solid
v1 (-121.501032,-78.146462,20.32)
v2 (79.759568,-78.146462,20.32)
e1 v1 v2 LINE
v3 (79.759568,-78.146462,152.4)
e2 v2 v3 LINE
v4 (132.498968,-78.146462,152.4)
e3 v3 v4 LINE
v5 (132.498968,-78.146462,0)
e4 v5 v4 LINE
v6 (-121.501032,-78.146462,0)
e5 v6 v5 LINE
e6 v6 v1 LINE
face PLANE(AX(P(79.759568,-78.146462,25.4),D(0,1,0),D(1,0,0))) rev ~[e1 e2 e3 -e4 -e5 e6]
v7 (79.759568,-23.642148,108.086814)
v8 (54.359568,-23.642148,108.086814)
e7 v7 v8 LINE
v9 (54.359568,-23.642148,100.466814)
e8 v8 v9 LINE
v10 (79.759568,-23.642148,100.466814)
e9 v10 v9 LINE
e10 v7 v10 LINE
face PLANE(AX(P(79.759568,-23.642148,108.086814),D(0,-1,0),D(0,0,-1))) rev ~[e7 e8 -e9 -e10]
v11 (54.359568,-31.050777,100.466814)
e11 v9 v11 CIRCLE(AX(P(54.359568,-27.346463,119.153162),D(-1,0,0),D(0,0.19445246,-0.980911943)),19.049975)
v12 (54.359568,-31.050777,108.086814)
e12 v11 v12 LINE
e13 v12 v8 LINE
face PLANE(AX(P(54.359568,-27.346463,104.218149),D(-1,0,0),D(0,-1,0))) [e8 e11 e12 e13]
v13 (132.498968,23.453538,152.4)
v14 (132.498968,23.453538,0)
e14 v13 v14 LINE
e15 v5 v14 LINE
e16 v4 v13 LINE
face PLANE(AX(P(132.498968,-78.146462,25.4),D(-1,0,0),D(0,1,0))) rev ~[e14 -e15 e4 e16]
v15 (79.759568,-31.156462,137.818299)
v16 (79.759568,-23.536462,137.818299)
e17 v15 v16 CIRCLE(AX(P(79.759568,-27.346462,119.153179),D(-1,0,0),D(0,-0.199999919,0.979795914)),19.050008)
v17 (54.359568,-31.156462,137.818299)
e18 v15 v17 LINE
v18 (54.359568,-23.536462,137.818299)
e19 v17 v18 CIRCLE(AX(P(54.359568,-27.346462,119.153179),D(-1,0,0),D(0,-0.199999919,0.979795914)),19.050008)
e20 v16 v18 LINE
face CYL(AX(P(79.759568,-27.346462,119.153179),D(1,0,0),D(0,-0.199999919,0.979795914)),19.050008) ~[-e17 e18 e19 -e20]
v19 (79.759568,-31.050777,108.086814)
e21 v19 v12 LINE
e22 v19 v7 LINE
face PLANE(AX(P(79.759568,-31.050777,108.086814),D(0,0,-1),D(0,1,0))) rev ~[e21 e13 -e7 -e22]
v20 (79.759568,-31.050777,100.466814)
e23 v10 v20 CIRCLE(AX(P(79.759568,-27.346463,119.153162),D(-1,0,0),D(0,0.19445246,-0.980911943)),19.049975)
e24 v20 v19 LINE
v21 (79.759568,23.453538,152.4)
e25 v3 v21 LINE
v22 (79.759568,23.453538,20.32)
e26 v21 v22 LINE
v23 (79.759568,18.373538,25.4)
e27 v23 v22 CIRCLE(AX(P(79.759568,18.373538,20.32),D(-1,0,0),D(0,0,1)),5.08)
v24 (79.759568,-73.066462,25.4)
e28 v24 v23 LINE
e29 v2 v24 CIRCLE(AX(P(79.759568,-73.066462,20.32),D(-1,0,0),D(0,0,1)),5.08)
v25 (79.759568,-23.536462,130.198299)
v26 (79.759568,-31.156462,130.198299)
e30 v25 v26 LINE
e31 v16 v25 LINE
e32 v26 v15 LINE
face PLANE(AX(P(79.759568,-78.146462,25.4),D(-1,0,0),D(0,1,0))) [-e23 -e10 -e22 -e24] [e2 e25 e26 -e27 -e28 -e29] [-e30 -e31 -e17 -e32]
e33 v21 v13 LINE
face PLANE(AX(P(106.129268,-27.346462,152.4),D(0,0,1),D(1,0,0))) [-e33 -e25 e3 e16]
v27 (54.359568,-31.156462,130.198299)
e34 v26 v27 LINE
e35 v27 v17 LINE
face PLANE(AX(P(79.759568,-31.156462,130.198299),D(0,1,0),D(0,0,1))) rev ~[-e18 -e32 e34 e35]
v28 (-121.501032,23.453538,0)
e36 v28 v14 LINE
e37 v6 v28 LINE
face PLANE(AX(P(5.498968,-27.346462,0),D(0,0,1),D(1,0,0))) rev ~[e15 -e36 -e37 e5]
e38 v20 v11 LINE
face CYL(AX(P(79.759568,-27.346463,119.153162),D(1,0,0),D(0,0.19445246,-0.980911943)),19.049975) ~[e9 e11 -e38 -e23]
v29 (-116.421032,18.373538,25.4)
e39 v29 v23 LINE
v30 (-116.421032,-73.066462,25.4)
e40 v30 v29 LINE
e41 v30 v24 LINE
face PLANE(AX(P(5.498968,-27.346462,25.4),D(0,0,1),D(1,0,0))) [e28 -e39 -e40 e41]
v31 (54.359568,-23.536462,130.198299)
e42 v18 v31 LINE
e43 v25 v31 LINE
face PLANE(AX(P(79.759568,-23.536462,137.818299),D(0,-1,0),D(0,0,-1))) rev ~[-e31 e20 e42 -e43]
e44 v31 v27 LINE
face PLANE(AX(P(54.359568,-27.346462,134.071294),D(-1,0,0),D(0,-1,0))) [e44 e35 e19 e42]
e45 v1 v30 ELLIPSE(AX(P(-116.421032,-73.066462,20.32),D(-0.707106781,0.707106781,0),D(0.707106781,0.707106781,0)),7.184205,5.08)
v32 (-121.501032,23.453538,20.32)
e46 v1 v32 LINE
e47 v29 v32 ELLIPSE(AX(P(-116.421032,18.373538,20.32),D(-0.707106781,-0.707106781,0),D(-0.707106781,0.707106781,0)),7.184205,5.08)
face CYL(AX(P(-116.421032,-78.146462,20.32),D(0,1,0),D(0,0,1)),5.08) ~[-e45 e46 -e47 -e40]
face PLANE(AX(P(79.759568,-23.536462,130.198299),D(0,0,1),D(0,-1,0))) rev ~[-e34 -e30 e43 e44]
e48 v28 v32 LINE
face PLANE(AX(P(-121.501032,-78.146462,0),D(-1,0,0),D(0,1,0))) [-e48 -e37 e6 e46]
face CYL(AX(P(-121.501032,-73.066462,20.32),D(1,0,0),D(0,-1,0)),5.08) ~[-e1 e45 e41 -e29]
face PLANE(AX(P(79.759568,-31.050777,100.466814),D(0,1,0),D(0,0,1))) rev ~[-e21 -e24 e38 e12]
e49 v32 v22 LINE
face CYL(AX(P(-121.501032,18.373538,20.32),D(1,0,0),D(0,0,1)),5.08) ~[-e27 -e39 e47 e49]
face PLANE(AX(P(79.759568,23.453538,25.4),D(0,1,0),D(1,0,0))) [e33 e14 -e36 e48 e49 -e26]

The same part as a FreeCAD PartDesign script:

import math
import FreeCAD as App
import Part
import Sketcher
Q = App.Units.Quantity


def edges_at(feature, points):
    """Names of the edges that pass closest to the given points."""
    edges = feature.Shape.Edges
    near = lambda p: min(range(len(edges)), key=lambda i: edges[i].distToShape(Part.Vertex(*p))[0])
    return sorted({f"Edge{near(p) + 1}" for p in points})


def add_polygon(sketch, points):
    """Adds a closed chain of lines whose ends are joined by coincident constraints."""
    first, n = sketch.GeometryCount, len(points)
    for a, b in zip(points, points[1:] + points[:1]):
        sketch.addGeometry(Part.LineSegment(App.Vector(*a, 0), App.Vector(*b, 0)), False)
    for i in range(n):
        sketch.addConstraint(Sketcher.Constraint("Coincident", first + i, 2, first + (i + 1) % n, 1))

doc = App.newDocument("Part")
body = doc.addObject("PartDesign::Body", "Body")

# Sketch on XY plane
sketch1 = body.newObject("Sketcher::SketchObject", "Sketch")
sketch1.AttachmentSupport = (doc.getObject("XY_Plane"), [""])
sketch1.MapMode = "FlatFace"
add_polygon(sketch1, [(-121.501032, 23.453538), (-121.501032, -78.146462), (132.498968, -78.146462), (132.498968, 23.453538)])  # lines 0-3
sketch1.addConstraint(Sketcher.Constraint("Vertical", 0))
sketch1.addConstraint(Sketcher.Constraint("Horizontal", 1))
sketch1.addConstraint(Sketcher.Constraint("Vertical", 2))
sketch1.addConstraint(Sketcher.Constraint("Horizontal", 3))
sketch1.addConstraint(Sketcher.Constraint("DistanceX", 1, 1, 1, 2, Q("10 in")))
sketch1.addConstraint(Sketcher.Constraint("DistanceY", 0, 2, 0, 1, Q("4 in")))
sketch1.addConstraint(Sketcher.Constraint("DistanceX", 0, 2, -1, 1, Q("121.501032 mm")))
sketch1.addConstraint(Sketcher.Constraint("DistanceY", 0, 2, -1, 1, Q("78.146462 mm")))
pad1 = body.newObject("PartDesign::Pad", "Pad")
pad1.Profile = sketch1
pad1.Length = Q("1 in")

# Sketch on XY plane
sketch2 = body.newObject("Sketcher::SketchObject", "Sketch001")
sketch2.AttachmentSupport = (doc.getObject("XY_Plane"), [""])
sketch2.MapMode = "FlatFace"
sketch2.AttachmentOffset = App.Placement(App.Vector(0, 0, 1 * 25.4), App.Rotation())
add_polygon(sketch2, [(79.759568, 23.453538), (79.759568, -78.146462), (132.498968, -78.146462), (132.498968, 23.453538)])  # lines 0-3
sketch2.addConstraint(Sketcher.Constraint("Vertical", 0))
sketch2.addConstraint(Sketcher.Constraint("Horizontal", 1))
sketch2.addConstraint(Sketcher.Constraint("Vertical", 2))
sketch2.addConstraint(Sketcher.Constraint("Horizontal", 3))
sketch2.addConstraint(Sketcher.Constraint("DistanceY", 0, 2, 0, 1, Q("4 in")))
sketch2.addConstraint(Sketcher.Constraint("DistanceX", 1, 1, 1, 2, Q("52.7394 mm")))
sketch2.addConstraint(Sketcher.Constraint("DistanceX", -1, 1, 0, 2, Q("79.759568 mm")))
sketch2.addConstraint(Sketcher.Constraint("DistanceY", 0, 2, -1, 1, Q("78.146462 mm")))
pad2 = body.newObject("PartDesign::Pad", "Pad001")
pad2.Profile = sketch2
pad2.Length = Q("5 in")

# Sketch on YZ plane
sketch3 = body.newObject("Sketcher::SketchObject", "Sketch002")
sketch3.AttachmentSupport = (doc.getObject("YZ_Plane"), [""])
sketch3.MapMode = "FlatFace"
sketch3.AttachmentOffset = App.Placement(App.Vector(0, 0, 79.759568), App.Rotation())
sketch3.addGeometry(Part.ArcOfCircle(Part.Circle(App.Vector(-27.346462, 119.153179, 0), App.Vector(0, 0, 1), 19.050008), math.radians(78.463046), math.radians(101.536954)), False)
sketch3.addGeometry(Part.LineSegment(App.Vector(-23.536462, 137.818299, 0), App.Vector(-23.536462, 130.198299, 0)), False)
sketch3.addGeometry(Part.LineSegment(App.Vector(-23.536462, 130.198299, 0), App.Vector(-31.156462, 130.198299, 0)), False)
sketch3.addGeometry(Part.LineSegment(App.Vector(-31.156462, 130.198299, 0), App.Vector(-31.156462, 137.818299, 0)), False)
sketch3.addGeometry(Part.LineSegment(App.Vector(-23.642148, 108.086814, 0), App.Vector(-23.642148, 100.466814, 0)), False)
sketch3.addGeometry(Part.ArcOfCircle(Part.Circle(App.Vector(-27.346463, 119.153162, 0), App.Vector(0, 0, 1), 19.049975), math.radians(-101.21274), math.radians(-78.78726)), False)
sketch3.addGeometry(Part.LineSegment(App.Vector(-31.050777, 100.466814, 0), App.Vector(-31.050777, 108.086814, 0)), False)
sketch3.addGeometry(Part.LineSegment(App.Vector(-31.050777, 108.086814, 0), App.Vector(-23.642148, 108.086814, 0)), False)
sketch3.addConstraint(Sketcher.Constraint("Coincident", 0, 1, 1, 1))
sketch3.addConstraint(Sketcher.Constraint("Coincident", 1, 2, 2, 1))
sketch3.addConstraint(Sketcher.Constraint("Coincident", 2, 2, 3, 1))
sketch3.addConstraint(Sketcher.Constraint("Coincident", 3, 2, 0, 2))
sketch3.addConstraint(Sketcher.Constraint("Coincident", 4, 2, 5, 2))
sketch3.addConstraint(Sketcher.Constraint("Coincident", 5, 1, 6, 1))
sketch3.addConstraint(Sketcher.Constraint("Coincident", 6, 2, 7, 1))
sketch3.addConstraint(Sketcher.Constraint("Coincident", 7, 2, 4, 1))
sketch3.addConstraint(Sketcher.Constraint("Vertical", 1))
sketch3.addConstraint(Sketcher.Constraint("Horizontal", 2))
sketch3.addConstraint(Sketcher.Constraint("Vertical", 3))
sketch3.addConstraint(Sketcher.Constraint("Vertical", 4))
sketch3.addConstraint(Sketcher.Constraint("Vertical", 6))
sketch3.addConstraint(Sketcher.Constraint("Horizontal", 7))
sketch3.addConstraint(Sketcher.Constraint("Horizontal", 0, 1, 3, 2))
sketch3.addConstraint(Sketcher.Constraint("Horizontal", 4, 2, 5, 1))
sketch3.addConstraint(Sketcher.Constraint("Vertical", 0, 3, 5, 3))
sketch3.addConstraint(Sketcher.Constraint("Equal", 2, 1))
sketch3.addConstraint(Sketcher.Constraint("Equal", 3, 4))
sketch3.addConstraint(Sketcher.Constraint("DistanceX", 2, 2, 2, 1, Q("0.3 in")))
sketch3.addConstraint(Sketcher.Constraint("Radius", 0, Q("19.050008 mm")))
sketch3.addConstraint(Sketcher.Constraint("Radius", 5, Q("19.049975 mm")))
sketch3.addConstraint(Sketcher.Constraint("DistanceX", 7, 1, 7, 2, Q("7.408629 mm")))
sketch3.addConstraint(Sketcher.Constraint("DistanceY", -1, 1, 0, 1, Q("137.818299 mm")))
sketch3.addConstraint(Sketcher.Constraint("DistanceX", 0, 3, -1, 1, Q("27.346462 mm")))
sketch3.addConstraint(Sketcher.Constraint("DistanceY", -1, 1, 5, 3, Q("119.153162 mm")))
pad3 = body.newObject("PartDesign::Pad", "Pad002")
pad3.Profile = sketch3
pad3.Length = Q("1 in")
pad3.Reversed = True
doc.recompute()

fillet = body.newObject("PartDesign::Fillet", "Fillet")
fillet.Base = (pad3, edges_at(pad3, [(-20.871, -78.146, 25.4), (-121.501, -27.346, 25.4), (-20.871, 23.454, 25.4)]))
fillet.Radius = Q("0.2 in")

doc.recompute()
